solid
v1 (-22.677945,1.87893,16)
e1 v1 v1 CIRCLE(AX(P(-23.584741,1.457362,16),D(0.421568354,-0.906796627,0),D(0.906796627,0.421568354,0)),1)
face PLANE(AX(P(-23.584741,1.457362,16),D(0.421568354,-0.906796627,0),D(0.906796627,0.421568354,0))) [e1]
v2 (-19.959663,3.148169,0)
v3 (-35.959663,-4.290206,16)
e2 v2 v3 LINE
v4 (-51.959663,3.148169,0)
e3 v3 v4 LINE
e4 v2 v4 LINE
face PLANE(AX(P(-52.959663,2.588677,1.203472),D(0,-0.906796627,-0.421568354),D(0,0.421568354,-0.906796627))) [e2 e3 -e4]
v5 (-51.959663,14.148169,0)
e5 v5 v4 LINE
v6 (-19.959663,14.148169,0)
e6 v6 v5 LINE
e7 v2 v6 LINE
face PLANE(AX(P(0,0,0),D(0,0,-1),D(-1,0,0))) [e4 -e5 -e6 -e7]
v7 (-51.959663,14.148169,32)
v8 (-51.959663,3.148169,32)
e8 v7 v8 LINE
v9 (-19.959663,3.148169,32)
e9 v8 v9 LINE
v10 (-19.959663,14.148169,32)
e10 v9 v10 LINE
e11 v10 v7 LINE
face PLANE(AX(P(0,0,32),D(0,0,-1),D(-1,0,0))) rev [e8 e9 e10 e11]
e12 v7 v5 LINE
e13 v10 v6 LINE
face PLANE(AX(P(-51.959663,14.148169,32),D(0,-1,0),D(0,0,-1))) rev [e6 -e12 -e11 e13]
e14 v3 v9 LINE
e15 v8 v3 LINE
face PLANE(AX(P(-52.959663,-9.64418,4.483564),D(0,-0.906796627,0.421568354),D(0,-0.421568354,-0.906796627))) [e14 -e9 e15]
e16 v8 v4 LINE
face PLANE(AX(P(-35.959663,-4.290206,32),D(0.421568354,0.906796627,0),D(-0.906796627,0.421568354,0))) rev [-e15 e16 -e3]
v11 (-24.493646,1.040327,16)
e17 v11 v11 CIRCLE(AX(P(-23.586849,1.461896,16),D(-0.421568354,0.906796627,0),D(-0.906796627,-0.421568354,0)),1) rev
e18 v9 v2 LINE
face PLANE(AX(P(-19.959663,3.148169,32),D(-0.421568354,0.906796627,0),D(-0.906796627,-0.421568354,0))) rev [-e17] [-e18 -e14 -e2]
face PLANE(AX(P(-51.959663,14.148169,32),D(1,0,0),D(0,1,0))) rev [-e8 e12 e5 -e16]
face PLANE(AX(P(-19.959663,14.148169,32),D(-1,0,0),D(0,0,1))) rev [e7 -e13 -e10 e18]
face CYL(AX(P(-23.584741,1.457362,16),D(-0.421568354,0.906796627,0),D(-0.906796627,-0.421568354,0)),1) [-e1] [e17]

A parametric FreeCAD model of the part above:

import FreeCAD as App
import Part
import Sketcher
Q = App.Units.Quantity


def add_polygon(sketch, points):
    """Adds a closed chain of lines whose ends are joined by coincident constraints."""
    first, n = sketch.GeometryCount, len(points)
    for a, b in zip(points, points[1:] + points[:1]):
        sketch.addGeometry(Part.LineSegment(App.Vector(*a, 0), App.Vector(*b, 0)), False)
    for i in range(n):
        sketch.addConstraint(Sketcher.Constraint("Coincident", first + i, 2, first + (i + 1) % n, 1))

doc = App.newDocument("Part")
body = doc.addObject("PartDesign::Body", "Body")

# Sketch on XY plane
sketch1 = doc.addObject("Sketcher::SketchObject", "Sketch")
body.addObject(sketch1)
sketch1.AttachmentSupport = (doc.XY_Plane, [""])
sketch1.MapMode = "FlatFace"
add_polygon(sketch1, [(-52, 14), (-52, 3), (-36, -4), (-20, 3), (-20, 14)])  # lines 0-4
sketch1.addConstraint(Sketcher.Constraint("Vertical", 0))
sketch1.addConstraint(Sketcher.Constraint("Vertical", 3))
sketch1.addConstraint(Sketcher.Constraint("Horizontal", 4))
sketch1.addConstraint(Sketcher.Constraint("Horizontal", 0, 2, 2, 2))
sketch1.addConstraint(Sketcher.Constraint("Equal", 1, 2))
sketch1.addConstraint(Sketcher.Constraint("DistanceX", 4, 2, 4, 1, Q("32 mm")))
sketch1.addConstraint(Sketcher.Constraint("DistanceY", 0, 2, 0, 1, Q("11 mm")))
sketch1.addConstraint(Sketcher.Constraint("Distance", 1, Q("17.64453 mm")))
sketch1.addConstraint(Sketcher.Constraint("DistanceY", -1, 1, 0, 2, Q("3.148169 mm")))
sketch1.addConstraint(Sketcher.Constraint("DistanceX", 0, 2, -1, 1, Q("51.959663 mm")))
pad1 = doc.addObject("PartDesign::Pad", "Pad")
body.addObject(pad1)
pad1.Profile = sketch1
pad1.Length = 32

# Sketch on YZ plane
sketch2 = doc.addObject("Sketcher::SketchObject", "Sketch001")
body.addObject(sketch2)
sketch2.AttachmentSupport = (doc.YZ_Plane, [""])
sketch2.MapMode = "FlatFace"
sketch2.AttachmentOffset = App.Placement(App.Vector(0, 0, -19.959663), App.Rotation())
add_polygon(sketch2, [(-4, 16), (-4, 0), (3, 0)])  # lines 0-2
add_polygon(sketch2, [(3, 32), (-4, 32), (-4, 16)])  # lines 3-5
sketch2.addConstraint(Sketcher.Constraint("Vertical", 0))
sketch2.addConstraint(Sketcher.Constraint("Horizontal", 1))
sketch2.addConstraint(Sketcher.Constraint("Horizontal", 3))
sketch2.addConstraint(Sketcher.Constraint("Vertical", 4))
sketch2.addConstraint(Sketcher.Constraint("Coincident", 4, 2, 2, 2))
sketch2.addConstraint(Sketcher.Constraint("PointOnObject", 0, 2, -1))
sketch2.addConstraint(Sketcher.Constraint("Vertical", 1, 2, 5, 2))
sketch2.addConstraint(Sketcher.Constraint("Equal", 0, 4))
sketch2.addConstraint(Sketcher.Constraint("DistanceY", 0, 2, 0, 1, Q("16 mm")))
sketch2.addConstraint(Sketcher.Constraint("Distance", 2, Q("17.64453 mm")))
sketch2.addConstraint(Sketcher.Constraint("DistanceX", -1, 1, 1, 2, Q("3.148169 mm")))
pocket1 = doc.addObject("PartDesign::Pocket", "Pocket")
body.addObject(pocket1)
pocket1.Profile = sketch2
pocket1.Length = 33

# Sketch on an angled plane
sketch3 = doc.addObject("Sketcher::SketchObject", "Sketch002")
body.addObject(sketch3)
sketch3.Placement = App.Placement(App.Vector(-4.750701, 10.218792, 0), App.Rotation(App.Vector(-0.906796627, -0.421568354, 0), App.Vector(0, 0, -1), App.Vector(0.421568354, -0.906796627, 0), "ZXY"))
sketch3.addGeometry(Part.Circle(App.Vector(20.8, -16, 0), App.Vector(0, 0, 1), 1), False)
sketch3.addConstraint(Sketcher.Constraint("Diameter", 0, Q("2 mm")))
sketch3.addConstraint(Sketcher.Constraint("DistanceY", 0, 3, -1, 1, Q("16 mm")))
sketch3.addConstraint(Sketcher.Constraint("DistanceX", -1, 1, 0, 3, Q("20.772186 mm")))
pad2 = doc.addObject("PartDesign::Pad", "Pad001")
body.addObject(pad2)
pad2.Profile = sketch3
pad2.Length = 0.005

doc.recompute()
